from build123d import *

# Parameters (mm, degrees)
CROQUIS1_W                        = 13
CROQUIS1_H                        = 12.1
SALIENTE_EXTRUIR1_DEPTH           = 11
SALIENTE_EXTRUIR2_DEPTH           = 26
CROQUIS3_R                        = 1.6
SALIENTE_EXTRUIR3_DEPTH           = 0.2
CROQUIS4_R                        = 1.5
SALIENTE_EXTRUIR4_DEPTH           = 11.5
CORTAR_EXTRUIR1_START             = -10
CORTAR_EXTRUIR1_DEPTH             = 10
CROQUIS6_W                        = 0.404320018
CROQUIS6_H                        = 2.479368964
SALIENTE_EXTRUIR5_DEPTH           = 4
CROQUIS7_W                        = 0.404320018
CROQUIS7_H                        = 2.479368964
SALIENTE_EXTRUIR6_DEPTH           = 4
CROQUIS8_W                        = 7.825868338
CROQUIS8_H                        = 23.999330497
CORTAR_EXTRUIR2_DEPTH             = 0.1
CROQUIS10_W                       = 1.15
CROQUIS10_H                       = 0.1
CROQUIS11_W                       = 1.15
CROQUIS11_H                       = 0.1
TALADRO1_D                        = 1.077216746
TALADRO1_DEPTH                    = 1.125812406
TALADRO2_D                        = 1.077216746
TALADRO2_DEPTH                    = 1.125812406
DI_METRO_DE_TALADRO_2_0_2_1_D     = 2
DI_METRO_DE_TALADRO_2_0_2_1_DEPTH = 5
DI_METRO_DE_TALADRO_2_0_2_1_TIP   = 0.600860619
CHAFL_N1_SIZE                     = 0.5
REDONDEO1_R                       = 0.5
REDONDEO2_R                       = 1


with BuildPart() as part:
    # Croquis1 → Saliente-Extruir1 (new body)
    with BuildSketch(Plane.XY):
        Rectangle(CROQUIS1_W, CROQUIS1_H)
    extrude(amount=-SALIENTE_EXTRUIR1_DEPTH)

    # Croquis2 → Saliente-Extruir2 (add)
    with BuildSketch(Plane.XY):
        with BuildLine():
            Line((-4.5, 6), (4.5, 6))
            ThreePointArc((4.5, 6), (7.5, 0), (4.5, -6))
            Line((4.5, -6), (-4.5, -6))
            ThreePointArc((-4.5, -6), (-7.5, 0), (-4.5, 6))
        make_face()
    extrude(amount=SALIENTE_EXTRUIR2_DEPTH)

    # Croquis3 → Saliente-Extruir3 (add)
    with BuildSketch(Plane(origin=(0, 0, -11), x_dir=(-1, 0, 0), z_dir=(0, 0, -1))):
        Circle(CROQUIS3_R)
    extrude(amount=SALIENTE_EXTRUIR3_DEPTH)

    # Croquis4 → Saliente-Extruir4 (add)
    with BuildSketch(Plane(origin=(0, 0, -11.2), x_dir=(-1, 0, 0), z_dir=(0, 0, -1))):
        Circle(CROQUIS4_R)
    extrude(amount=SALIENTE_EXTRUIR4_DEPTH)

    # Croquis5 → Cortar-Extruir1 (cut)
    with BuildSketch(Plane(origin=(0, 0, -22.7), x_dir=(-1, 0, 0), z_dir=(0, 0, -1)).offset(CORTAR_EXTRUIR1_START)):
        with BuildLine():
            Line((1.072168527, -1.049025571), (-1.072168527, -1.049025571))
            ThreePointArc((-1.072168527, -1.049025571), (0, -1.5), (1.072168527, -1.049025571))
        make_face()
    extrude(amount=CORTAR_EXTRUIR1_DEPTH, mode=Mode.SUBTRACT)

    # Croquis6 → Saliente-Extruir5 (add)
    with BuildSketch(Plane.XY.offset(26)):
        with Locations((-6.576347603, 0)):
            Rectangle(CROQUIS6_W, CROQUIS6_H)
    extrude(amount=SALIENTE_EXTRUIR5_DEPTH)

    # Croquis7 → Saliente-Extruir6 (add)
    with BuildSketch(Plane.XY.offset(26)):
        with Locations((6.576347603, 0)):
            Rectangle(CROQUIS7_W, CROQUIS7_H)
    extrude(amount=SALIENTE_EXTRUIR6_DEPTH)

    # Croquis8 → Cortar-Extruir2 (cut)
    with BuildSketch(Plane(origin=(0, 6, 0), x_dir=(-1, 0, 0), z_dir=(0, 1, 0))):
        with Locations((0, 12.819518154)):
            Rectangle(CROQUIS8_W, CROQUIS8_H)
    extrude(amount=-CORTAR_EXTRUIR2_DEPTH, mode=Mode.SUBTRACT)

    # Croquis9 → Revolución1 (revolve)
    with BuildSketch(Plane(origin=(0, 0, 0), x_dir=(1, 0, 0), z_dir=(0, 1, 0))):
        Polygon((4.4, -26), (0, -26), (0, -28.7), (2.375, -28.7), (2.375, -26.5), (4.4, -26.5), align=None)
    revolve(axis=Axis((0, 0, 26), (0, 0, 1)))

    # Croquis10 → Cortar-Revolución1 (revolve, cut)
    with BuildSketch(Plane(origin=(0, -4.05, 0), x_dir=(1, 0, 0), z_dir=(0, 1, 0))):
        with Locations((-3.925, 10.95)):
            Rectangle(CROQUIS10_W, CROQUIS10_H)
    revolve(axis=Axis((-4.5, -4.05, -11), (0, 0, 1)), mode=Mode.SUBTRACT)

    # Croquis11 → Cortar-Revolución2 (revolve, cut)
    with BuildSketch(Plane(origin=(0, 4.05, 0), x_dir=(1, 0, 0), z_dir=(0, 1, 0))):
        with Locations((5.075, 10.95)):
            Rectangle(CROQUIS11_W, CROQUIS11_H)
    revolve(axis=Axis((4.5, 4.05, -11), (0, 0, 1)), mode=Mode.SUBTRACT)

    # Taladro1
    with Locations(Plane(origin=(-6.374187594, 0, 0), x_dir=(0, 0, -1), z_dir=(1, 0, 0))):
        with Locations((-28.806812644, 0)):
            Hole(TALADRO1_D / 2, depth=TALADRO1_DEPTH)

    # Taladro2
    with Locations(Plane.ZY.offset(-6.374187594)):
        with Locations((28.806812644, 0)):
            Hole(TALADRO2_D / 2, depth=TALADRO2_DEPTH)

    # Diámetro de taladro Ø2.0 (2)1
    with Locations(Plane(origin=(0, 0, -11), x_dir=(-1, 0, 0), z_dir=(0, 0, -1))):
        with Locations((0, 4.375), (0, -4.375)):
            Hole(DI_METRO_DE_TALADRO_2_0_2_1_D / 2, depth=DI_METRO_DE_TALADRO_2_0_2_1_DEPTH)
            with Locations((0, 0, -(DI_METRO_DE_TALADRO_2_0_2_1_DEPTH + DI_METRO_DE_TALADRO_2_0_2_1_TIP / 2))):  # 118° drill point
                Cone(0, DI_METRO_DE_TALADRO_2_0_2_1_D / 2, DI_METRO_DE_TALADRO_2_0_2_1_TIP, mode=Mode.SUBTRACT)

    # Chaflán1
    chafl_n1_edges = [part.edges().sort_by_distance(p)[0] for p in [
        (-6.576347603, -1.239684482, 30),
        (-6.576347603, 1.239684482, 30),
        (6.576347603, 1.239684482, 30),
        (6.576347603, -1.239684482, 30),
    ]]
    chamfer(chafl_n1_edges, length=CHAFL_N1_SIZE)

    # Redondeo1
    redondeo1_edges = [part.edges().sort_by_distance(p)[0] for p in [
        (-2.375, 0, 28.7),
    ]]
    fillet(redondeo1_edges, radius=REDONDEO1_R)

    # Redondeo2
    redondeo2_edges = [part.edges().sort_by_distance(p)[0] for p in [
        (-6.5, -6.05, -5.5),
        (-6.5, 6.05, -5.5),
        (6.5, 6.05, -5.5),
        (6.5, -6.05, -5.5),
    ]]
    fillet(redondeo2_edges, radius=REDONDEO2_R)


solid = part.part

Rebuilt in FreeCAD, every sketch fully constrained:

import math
import FreeCAD as App
import Part
import Sketcher
from FreeCAD import Vector


def edges_at(feature, points):
    """Names of the edges that pass closest to the given points."""
    edges = feature.Shape.Edges
    near = lambda p: min(range(len(edges)), key=lambda i: edges[i].distToShape(Part.Vertex(*p))[0])
    return sorted({f"Edge{near(p) + 1}" for p in points})

doc = App.newDocument("Part")
body = doc.addObject("PartDesign::Body", "Body")

sketch1 = doc.addObject("Sketcher::SketchObject", "Sketch")
body.addObject(sketch1)
sketch1.AttachmentSupport = (doc.XY_Plane, [""])
sketch1.MapMode = "FlatFace"
sketch1.addGeometry([
    Part.LineSegment(Vector(-6, 6, 0), Vector(-6, -6, 0)),
    Part.LineSegment(Vector(-6, -6, 0), Vector(6, -6, 0)),
    Part.LineSegment(Vector(6, -6, 0), Vector(6, 6, 0)),
    Part.LineSegment(Vector(6, 6, 0), Vector(-6, 6, 0)),
], False)
sketch1.addConstraint([
    Sketcher.Constraint("Coincident", 0, 2, 1, 1),
    Sketcher.Constraint("Coincident", 1, 2, 2, 1),
    Sketcher.Constraint("Coincident", 2, 2, 3, 1),
    Sketcher.Constraint("Coincident", 3, 2, 0, 1),
    Sketcher.Constraint("Vertical", 0),
    Sketcher.Constraint("Horizontal", 1),
    Sketcher.Constraint("Vertical", 2),
    Sketcher.Constraint("Horizontal", 3),
    Sketcher.Constraint("Symmetric", 0, 2, 2, 2, -1, 1),
    Sketcher.Constraint("DistanceX", 1, 1, 1, 2, 13.0),
    Sketcher.Constraint("DistanceY", 0, 2, 0, 1, 12.1),
])
pad1 = doc.addObject("PartDesign::Pad", "Pad")
body.addObject(pad1)
pad1.Profile = sketch1
pad1.Length = 11
pad1.Reversed = True

sketch2 = doc.addObject("Sketcher::SketchObject", "Sketch001")
body.addObject(sketch2)
sketch2.AttachmentSupport = (doc.XY_Plane, [""])
sketch2.MapMode = "FlatFace"
sketch2.addGeometry([
    Part.LineSegment(Vector(4, 6, 0), Vector(-4, 6, 0)),
    Part.ArcOfCircle(Part.Circle(Vector(0, 0, 0), Vector(0, 0, 1), 8), math.radians(127), math.radians(233)),
    Part.LineSegment(Vector(-4, -6, 0), Vector(4, -6, 0)),
    Part.ArcOfCircle(Part.Circle(Vector(0, 0, 0), Vector(0, 0, 1), 8), math.radians(-53), math.radians(53)),
], False)
sketch2.addConstraint([
    Sketcher.Constraint("Coincident", 0, 2, 1, 1),
    Sketcher.Constraint("Coincident", 1, 2, 2, 1),
    Sketcher.Constraint("Coincident", 2, 2, 3, 1),
    Sketcher.Constraint("Coincident", 3, 2, 0, 1),
    Sketcher.Constraint("Horizontal", 0),
    Sketcher.Constraint("Horizontal", 2),
    Sketcher.Constraint("Coincident", 1, 3, -1, 1),
    Sketcher.Constraint("Coincident", 3, 3, -1, 1),
    Sketcher.Constraint("Equal", 1, 3),
    Sketcher.Constraint("Vertical", 0, 2, 1, 2),
    Sketcher.Constraint("Radius", 1, 7.5),
    Sketcher.Constraint("DistanceX", 0, 2, 0, 1, 9.0),
])
pad2 = doc.addObject("PartDesign::Pad", "Pad001")
body.addObject(pad2)
pad2.Profile = sketch2
pad2.Length = 26

sketch3 = doc.addObject("Sketcher::SketchObject", "Sketch002")
body.addObject(sketch3)
sketch3.AttachmentSupport = (doc.XY_Plane, [""])
sketch3.MapMode = "FlatFace"
sketch3.AttachmentOffset = App.Placement(Vector(0, 0, -11), App.Rotation())
sketch3.addGeometry(Part.Circle(Vector(0, 0, 0), Vector(0, 0, 1), 1.6), False)
sketch3.addConstraint([
    Sketcher.Constraint("Coincident", 0, 3, -1, 1),
    Sketcher.Constraint("Diameter", 0, 3.2),
])
pad3 = doc.addObject("PartDesign::Pad", "Pad002")
body.addObject(pad3)
pad3.Profile = sketch3
pad3.Length = 0.2
pad3.Reversed = True

sketch4 = doc.addObject("Sketcher::SketchObject", "Sketch003")
body.addObject(sketch4)
sketch4.AttachmentSupport = (doc.XY_Plane, [""])
sketch4.MapMode = "FlatFace"
sketch4.AttachmentOffset = App.Placement(Vector(0, 0, -11.2), App.Rotation())
sketch4.addGeometry(Part.Circle(Vector(0, 0, 0), Vector(0, 0, 1), 1.5), False)
sketch4.addConstraint([
    Sketcher.Constraint("Coincident", 0, 3, -1, 1),
    Sketcher.Constraint("Diameter", 0, 3.0),
])
pad4 = doc.addObject("PartDesign::Pad", "Pad003")
body.addObject(pad4)
pad4.Profile = sketch4
pad4.Length = 11.5
pad4.Reversed = True

sketch5 = doc.addObject("Sketcher::SketchObject", "Sketch004")
body.addObject(sketch5)
sketch5.AttachmentSupport = (doc.XY_Plane, [""])
sketch5.MapMode = "FlatFace"
sketch5.AttachmentOffset = App.Placement(Vector(0, 0, -12.7), App.Rotation())
sketch5.addGeometry([
    Part.LineSegment(Vector(-1.1, -1, 0), Vector(1.1, -1, 0)),
    Part.ArcOfCircle(Part.Circle(Vector(0, 0, 0), Vector(0, 0, 1), 1.5), math.radians(-136), math.radians(-44)),
], False)
sketch5.addConstraint([
    Sketcher.Constraint("Coincident", 0, 1, 1, 1),
    Sketcher.Constraint("Coincident", 1, 2, 0, 2),
    Sketcher.Constraint("Horizontal", 0),
    Sketcher.Constraint("Coincident", 1, 3, -1, 1),
    Sketcher.Constraint("Radius", 1, 1.5),
    Sketcher.Constraint("DistanceX", 0, 1, 0, 2, 2.144337),
])
pocket1 = doc.addObject("PartDesign::Pocket", "Pocket")
body.addObject(pocket1)
pocket1.Profile = sketch5
pocket1.Length = 10

sketch6 = doc.addObject("Sketcher::SketchObject", "Sketch005")
body.addObject(sketch6)
sketch6.AttachmentSupport = (doc.XY_Plane, [""])
sketch6.MapMode = "FlatFace"
sketch6.AttachmentOffset = App.Placement(Vector(0, 0, 26), App.Rotation())
sketch6.addGeometry([
    Part.LineSegment(Vector(-6.78, 1.24, 0), Vector(-6.78, -1.24, 0)),
    Part.LineSegment(Vector(-6.78, -1.24, 0), Vector(-6.37, -1.24, 0)),
    Part.LineSegment(Vector(-6.37, -1.24, 0), Vector(-6.37, 1.24, 0)),
    Part.LineSegment(Vector(-6.37, 1.24, 0), Vector(-6.78, 1.24, 0)),
], False)
sketch6.addConstraint([
    Sketcher.Constraint("Coincident", 0, 2, 1, 1),
    Sketcher.Constraint("Coincident", 1, 2, 2, 1),
    Sketcher.Constraint("Coincident", 2, 2, 3, 1),
    Sketcher.Constraint("Coincident", 3, 2, 0, 1),
    Sketcher.Constraint("Vertical", 0),
    Sketcher.Constraint("Horizontal", 1),
    Sketcher.Constraint("Vertical", 2),
    Sketcher.Constraint("Horizontal", 3),
    Sketcher.Constraint("DistanceX", 1, 1, 1, 2, 0.40432),
    Sketcher.Constraint("DistanceY", 0, 2, 0, 1, 2.479369),
    Sketcher.Constraint("DistanceX", 0, 2, -1, 1, 6.778508),
    Sketcher.Constraint("DistanceY", 0, 2, -1, 1, 1.239684),
])
pad5 = doc.addObject("PartDesign::Pad", "Pad004")
body.addObject(pad5)
pad5.Profile = sketch6
pad5.Length = 4

sketch7 = doc.addObject("Sketcher::SketchObject", "Sketch006")
body.addObject(sketch7)
sketch7.AttachmentSupport = (doc.XY_Plane, [""])
sketch7.MapMode = "FlatFace"
sketch7.AttachmentOffset = App.Placement(Vector(0, 0, 26), App.Rotation())
sketch7.addGeometry([
    Part.LineSegment(Vector(6.37, 1.24, 0), Vector(6.37, -1.24, 0)),
    Part.LineSegment(Vector(6.37, -1.24, 0), Vector(6.78, -1.24, 0)),
    Part.LineSegment(Vector(6.78, -1.24, 0), Vector(6.78, 1.24, 0)),
    Part.LineSegment(Vector(6.78, 1.24, 0), Vector(6.37, 1.24, 0)),
], False)
sketch7.addConstraint([
    Sketcher.Constraint("Coincident", 0, 2, 1, 1),
    Sketcher.Constraint("Coincident", 1, 2, 2, 1),
    Sketcher.Constraint("Coincident", 2, 2, 3, 1),
    Sketcher.Constraint("Coincident", 3, 2, 0, 1),
    Sketcher.Constraint("Vertical", 0),
    Sketcher.Constraint("Horizontal", 1),
    Sketcher.Constraint("Vertical", 2),
    Sketcher.Constraint("Horizontal", 3),
    Sketcher.Constraint("DistanceX", 1, 1, 1, 2, 0.40432),
    Sketcher.Constraint("DistanceY", 0, 2, 0, 1, 2.479369),
    Sketcher.Constraint("DistanceX", -1, 1, 0, 2, 6.374188),
    Sketcher.Constraint("DistanceY", 0, 2, -1, 1, 1.239684),
])
pad6 = doc.addObject("PartDesign::Pad", "Pad005")
body.addObject(pad6)
pad6.Profile = sketch7
pad6.Length = 4

sketch8 = doc.addObject("Sketcher::SketchObject", "Sketch007")
body.addObject(sketch8)
sketch8.AttachmentSupport = (doc.XZ_Plane, [""])
sketch8.MapMode = "FlatFace"
sketch8.AttachmentOffset = App.Placement(Vector(0, 0, -6), App.Rotation())
sketch8.addGeometry([
    Part.LineSegment(Vector(4, 25, 0), Vector(4, 1, 0)),
    Part.LineSegment(Vector(4, 1, 0), Vector(-4, 1, 0)),
    Part.LineSegment(Vector(-4, 1, 0), Vector(-4, 25, 0)),
    Part.LineSegment(Vector(-4, 25, 0), Vector(4, 25, 0)),
], False)
sketch8.addConstraint([
    Sketcher.Constraint("Coincident", 0, 2, 1, 1),
    Sketcher.Constraint("Coincident", 1, 2, 2, 1),
    Sketcher.Constraint("Coincident", 2, 2, 3, 1),
    Sketcher.Constraint("Coincident", 3, 2, 0, 1),
    Sketcher.Constraint("Vertical", 0),
    Sketcher.Constraint("Horizontal", 1),
    Sketcher.Constraint("Vertical", 2),
    Sketcher.Constraint("Horizontal", 3),
    Sketcher.Constraint("DistanceX", 1, 2, 1, 1, 7.825868),
    Sketcher.Constraint("DistanceY", 0, 2, 0, 1, 23.99933),
    Sketcher.Constraint("DistanceX", -1, 1, 0, 2, 3.912934),
    Sketcher.Constraint("DistanceY", -1, 1, 0, 2, 0.819853),
])
pocket2 = doc.addObject("PartDesign::Pocket", "Pocket001")
body.addObject(pocket2)
pocket2.Profile = sketch8
pocket2.Length = 0.1
pocket2.Reversed = True

sketch9 = doc.addObject("Sketcher::SketchObject", "Sketch008")
body.addObject(sketch9)
sketch9.AttachmentSupport = (doc.XZ_Plane, [""])
sketch9.MapMode = "FlatFace"
sketch9.addGeometry([
    Part.LineSegment(Vector(4.4, 26, 0), Vector(0, 26, 0)),
    Part.LineSegment(Vector(0, 26, 0), Vector(0, 28.7, 0)),
    Part.LineSegment(Vector(0, 28.7, 0), Vector(2.4, 28.7, 0)),
    Part.LineSegment(Vector(2.4, 28.7, 0), Vector(2.4, 26.5, 0)),
    Part.LineSegment(Vector(2.4, 26.5, 0), Vector(4.4, 26.5, 0)),
    Part.LineSegment(Vector(4.4, 26.5, 0), Vector(4.4, 26, 0)),
], False)
sketch9.addConstraint([
    Sketcher.Constraint("Coincident", 0, 2, 1, 1),
    Sketcher.Constraint("Coincident", 1, 2, 2, 1),
    Sketcher.Constraint("Coincident", 2, 2, 3, 1),
    Sketcher.Constraint("Coincident", 3, 2, 4, 1),
    Sketcher.Constraint("Coincident", 4, 2, 5, 1),
    Sketcher.Constraint("Coincident", 5, 2, 0, 1),
    Sketcher.Constraint("Horizontal", 0),
    Sketcher.Constraint("Vertical", 1),
    Sketcher.Constraint("Horizontal", 2),
    Sketcher.Constraint("Vertical", 3),
    Sketcher.Constraint("Horizontal", 4),
    Sketcher.Constraint("Vertical", 5),
    Sketcher.Constraint("PointOnObject", 0, 2, -2),
    Sketcher.Constraint("DistanceX", 0, 2, 0, 1, 4.4),
    Sketcher.Constraint("DistanceY", 1, 1, 1, 2, 2.7),
    Sketcher.Constraint("DistanceY", 3, 2, 3, 1, 2.2),
    Sketcher.Constraint("DistanceY", -1, 1, 0, 2, 26.0),
    Sketcher.Constraint("DistanceX", 2, 1, 2, 2, 2.375),
])
revolution = doc.addObject("PartDesign::Revolution", "Revolution")
body.addObject(revolution)
revolution.Profile = sketch9
revolution.ReferenceAxis = (sketch9, ["V_Axis"])
revolution.Angle = 360

sketch10 = doc.addObject("Sketcher::SketchObject", "Sketch009")
body.addObject(sketch10)
sketch10.AttachmentSupport = (doc.XZ_Plane, [""])
sketch10.MapMode = "FlatFace"
sketch10.AttachmentOffset = App.Placement(Vector(0, 0, 4.05), App.Rotation())
sketch10.addGeometry([
    Part.LineSegment(Vector(-4.5, -11, 0), Vector(-4.5, -10.9, 0)),
    Part.LineSegment(Vector(-4.5, -10.9, 0), Vector(-3.35, -10.9, 0)),
    Part.LineSegment(Vector(-3.35, -10.9, 0), Vector(-3.35, -11, 0)),
    Part.LineSegment(Vector(-3.35, -11, 0), Vector(-4.5, -11, 0)),
], False)
sketch10.addGeometry(Part.LineSegment(Vector(-4.5, -11, 0), Vector(-4.5, -10.9, 0)), True)
sketch10.addConstraint([
    Sketcher.Constraint("Coincident", 0, 2, 1, 1),
    Sketcher.Constraint("Coincident", 1, 2, 2, 1),
    Sketcher.Constraint("Coincident", 2, 2, 3, 1),
    Sketcher.Constraint("Coincident", 3, 2, 0, 1),
    Sketcher.Constraint("Vertical", 0),
    Sketcher.Constraint("Horizontal", 1),
    Sketcher.Constraint("Vertical", 2),
    Sketcher.Constraint("Horizontal", 3),
    Sketcher.Constraint("Vertical", 4),
    Sketcher.Constraint("Coincident", 4, 1, 3, 2),
    Sketcher.Constraint("Horizontal", 1, 2, 4, 2),
    Sketcher.Constraint("DistanceY", 0, 1, 0, 2, 0.1),
    Sketcher.Constraint("DistanceY", 2, 2, -1, 1, 11.0),
    Sketcher.Constraint("DistanceX", 1, 1, 1, 2, 1.15),
    Sketcher.Constraint("DistanceX", 0, 2, -1, 1, 4.5),
])
groove = doc.addObject("PartDesign::Groove", "Groove")
body.addObject(groove)
groove.Profile = sketch10
groove.ReferenceAxis = (sketch10, ["Axis0"])
groove.Angle = 360

sketch11 = doc.addObject("Sketcher::SketchObject", "Sketch010")
body.addObject(sketch11)
sketch11.AttachmentSupport = (doc.XZ_Plane, [""])
sketch11.MapMode = "FlatFace"
sketch11.AttachmentOffset = App.Placement(Vector(0, 0, -4.05), App.Rotation())
sketch11.addGeometry([
    Part.LineSegment(Vector(4.5, -11, 0), Vector(4.5, -10.9, 0)),
    Part.LineSegment(Vector(4.5, -10.9, 0), Vector(5.65, -10.9, 0)),
    Part.LineSegment(Vector(5.65, -10.9, 0), Vector(5.65, -11, 0)),
    Part.LineSegment(Vector(5.65, -11, 0), Vector(4.5, -11, 0)),
], False)
sketch11.addGeometry(Part.LineSegment(Vector(4.5, -11, 0), Vector(4.5, -10.9, 0)), True)
sketch11.addConstraint([
    Sketcher.Constraint("Coincident", 0, 2, 1, 1),
    Sketcher.Constraint("Coincident", 1, 2, 2, 1),
    Sketcher.Constraint("Coincident", 2, 2, 3, 1),
    Sketcher.Constraint("Coincident", 3, 2, 0, 1),
    Sketcher.Constraint("Vertical", 0),
    Sketcher.Constraint("Horizontal", 1),
    Sketcher.Constraint("Vertical", 2),
    Sketcher.Constraint("Horizontal", 3),
    Sketcher.Constraint("Vertical", 4),
    Sketcher.Constraint("Coincident", 4, 1, 3, 2),
    Sketcher.Constraint("Horizontal", 1, 2, 4, 2),
    Sketcher.Constraint("DistanceY", 0, 1, 0, 2, 0.1),
    Sketcher.Constraint("DistanceY", 2, 2, -1, 1, 11.0),
    Sketcher.Constraint("DistanceX", 1, 1, 1, 2, 1.15),
    Sketcher.Constraint("DistanceX", -1, 1, 0, 2, 4.5),
])
groove2 = doc.addObject("PartDesign::Groove", "Groove001")
body.addObject(groove2)
groove2.Profile = sketch11
groove2.ReferenceAxis = (sketch11, ["Axis0"])
groove2.Angle = 360

sketch12 = doc.addObject("Sketcher::SketchObject", "Sketch011")
body.addObject(sketch12)
sketch12.AttachmentSupport = (doc.YZ_Plane, [""])
sketch12.MapMode = "FlatFace"
sketch12.AttachmentOffset = App.Placement(Vector(0, 0, -6.374188), App.Rotation())
sketch12.addGeometry(Part.Circle(Vector(0, 28.8, 0), Vector(0, 0, 1), 0.5), False)
sketch12.addConstraint([
    Sketcher.Constraint("PointOnObject", 0, 3, -2),
    Sketcher.Constraint("Diameter", 0, 1.077217),
    Sketcher.Constraint("DistanceY", -1, 1, 0, 3, 28.806813),
])
doc.recompute()
hole = doc.addObject("PartDesign::Hole", "Hole")
body.addObject(hole)
hole.Profile = sketch12
hole.ThreadType = "None"
hole.Diameter = 1.077217
hole.DepthType = "Dimension"
hole.Depth = 1.125812
hole.DrillPoint = "Flat"

sketch13 = doc.addObject("Sketcher::SketchObject", "Sketch012")
body.addObject(sketch13)
sketch13.AttachmentSupport = (doc.YZ_Plane, [""])
sketch13.MapMode = "FlatFace"
sketch13.AttachmentOffset = App.Placement(Vector(0, 0, 6.374188), App.Rotation())
sketch13.addGeometry(Part.Circle(Vector(0, 28.8, 0), Vector(0, 0, 1), 0.5), False)
sketch13.addConstraint([
    Sketcher.Constraint("PointOnObject", 0, 3, -2),
    Sketcher.Constraint("Diameter", 0, 1.077217),
    Sketcher.Constraint("DistanceY", -1, 1, 0, 3, 28.806813),
])
doc.recompute()
hole2 = doc.addObject("PartDesign::Hole", "Hole001")
body.addObject(hole2)
hole2.Profile = sketch13
hole2.ThreadType = "None"
hole2.Diameter = 1.077217
hole2.DepthType = "Dimension"
hole2.Depth = 1.125812
hole2.DrillPoint = "Flat"
hole2.Reversed = True

sketch14 = doc.addObject("Sketcher::SketchObject", "Sketch013")
body.addObject(sketch14)
sketch14.AttachmentSupport = (doc.XY_Plane, [""])
sketch14.MapMode = "FlatFace"
sketch14.AttachmentOffset = App.Placement(Vector(0, 0, -11), App.Rotation())
sketch14.addGeometry([
    Part.Circle(Vector(0, 4.4, 0), Vector(0, 0, 1), 1),
    Part.Circle(Vector(0, -4.4, 0), Vector(0, 0, 1), 1),
], False)
sketch14.addConstraint([
    Sketcher.Constraint("Equal", 0, 1),
    Sketcher.Constraint("Symmetric", 0, 3, 1, 3, -1, 1),
    Sketcher.Constraint("PointOnObject", 0, 3, -2),
    Sketcher.Constraint("Diameter", 0, 2.0),
    Sketcher.Constraint("DistanceY", 1, 3, 0, 3, 8.75),
])
doc.recompute()
hole3 = doc.addObject("PartDesign::Hole", "Hole002")
body.addObject(hole3)
hole3.Profile = sketch14
hole3.ThreadType = "None"
hole3.Diameter = 2
hole3.DepthType = "Dimension"
hole3.Depth = 5
hole3.DrillPoint = "Angled"
hole3.DrillPointAngle = 118
hole3.Reversed = True
doc.recompute()

chamfer = doc.addObject("PartDesign::Chamfer", "Chamfer")
body.addObject(chamfer)
chamfer.Base = (hole3, edges_at(hole3, [
    (-6.576, -1.24, 30),
    (-6.576, 1.24, 30),
    (6.576, 1.24, 30),
    (6.576, -1.24, 30),
]))
chamfer.Size = 0.5
doc.recompute()

fillet = doc.addObject("PartDesign::Fillet", "Fillet")
body.addObject(fillet)
fillet.Base = (chamfer, edges_at(chamfer, [(-2.375, 0, 28.7)]))
fillet.Radius = 0.5
doc.recompute()

fillet2 = doc.addObject("PartDesign::Fillet", "Fillet001")
body.addObject(fillet2)
fillet2.Base = (fillet, edges_at(fillet, [
    (-6.5, -6.05, -5.5),
    (-6.5, 6.05, -5.5),
    (6.5, 6.05, -5.5),
    (6.5, -6.05, -5.5),
]))
fillet2.Radius = 1

doc.recompute()
